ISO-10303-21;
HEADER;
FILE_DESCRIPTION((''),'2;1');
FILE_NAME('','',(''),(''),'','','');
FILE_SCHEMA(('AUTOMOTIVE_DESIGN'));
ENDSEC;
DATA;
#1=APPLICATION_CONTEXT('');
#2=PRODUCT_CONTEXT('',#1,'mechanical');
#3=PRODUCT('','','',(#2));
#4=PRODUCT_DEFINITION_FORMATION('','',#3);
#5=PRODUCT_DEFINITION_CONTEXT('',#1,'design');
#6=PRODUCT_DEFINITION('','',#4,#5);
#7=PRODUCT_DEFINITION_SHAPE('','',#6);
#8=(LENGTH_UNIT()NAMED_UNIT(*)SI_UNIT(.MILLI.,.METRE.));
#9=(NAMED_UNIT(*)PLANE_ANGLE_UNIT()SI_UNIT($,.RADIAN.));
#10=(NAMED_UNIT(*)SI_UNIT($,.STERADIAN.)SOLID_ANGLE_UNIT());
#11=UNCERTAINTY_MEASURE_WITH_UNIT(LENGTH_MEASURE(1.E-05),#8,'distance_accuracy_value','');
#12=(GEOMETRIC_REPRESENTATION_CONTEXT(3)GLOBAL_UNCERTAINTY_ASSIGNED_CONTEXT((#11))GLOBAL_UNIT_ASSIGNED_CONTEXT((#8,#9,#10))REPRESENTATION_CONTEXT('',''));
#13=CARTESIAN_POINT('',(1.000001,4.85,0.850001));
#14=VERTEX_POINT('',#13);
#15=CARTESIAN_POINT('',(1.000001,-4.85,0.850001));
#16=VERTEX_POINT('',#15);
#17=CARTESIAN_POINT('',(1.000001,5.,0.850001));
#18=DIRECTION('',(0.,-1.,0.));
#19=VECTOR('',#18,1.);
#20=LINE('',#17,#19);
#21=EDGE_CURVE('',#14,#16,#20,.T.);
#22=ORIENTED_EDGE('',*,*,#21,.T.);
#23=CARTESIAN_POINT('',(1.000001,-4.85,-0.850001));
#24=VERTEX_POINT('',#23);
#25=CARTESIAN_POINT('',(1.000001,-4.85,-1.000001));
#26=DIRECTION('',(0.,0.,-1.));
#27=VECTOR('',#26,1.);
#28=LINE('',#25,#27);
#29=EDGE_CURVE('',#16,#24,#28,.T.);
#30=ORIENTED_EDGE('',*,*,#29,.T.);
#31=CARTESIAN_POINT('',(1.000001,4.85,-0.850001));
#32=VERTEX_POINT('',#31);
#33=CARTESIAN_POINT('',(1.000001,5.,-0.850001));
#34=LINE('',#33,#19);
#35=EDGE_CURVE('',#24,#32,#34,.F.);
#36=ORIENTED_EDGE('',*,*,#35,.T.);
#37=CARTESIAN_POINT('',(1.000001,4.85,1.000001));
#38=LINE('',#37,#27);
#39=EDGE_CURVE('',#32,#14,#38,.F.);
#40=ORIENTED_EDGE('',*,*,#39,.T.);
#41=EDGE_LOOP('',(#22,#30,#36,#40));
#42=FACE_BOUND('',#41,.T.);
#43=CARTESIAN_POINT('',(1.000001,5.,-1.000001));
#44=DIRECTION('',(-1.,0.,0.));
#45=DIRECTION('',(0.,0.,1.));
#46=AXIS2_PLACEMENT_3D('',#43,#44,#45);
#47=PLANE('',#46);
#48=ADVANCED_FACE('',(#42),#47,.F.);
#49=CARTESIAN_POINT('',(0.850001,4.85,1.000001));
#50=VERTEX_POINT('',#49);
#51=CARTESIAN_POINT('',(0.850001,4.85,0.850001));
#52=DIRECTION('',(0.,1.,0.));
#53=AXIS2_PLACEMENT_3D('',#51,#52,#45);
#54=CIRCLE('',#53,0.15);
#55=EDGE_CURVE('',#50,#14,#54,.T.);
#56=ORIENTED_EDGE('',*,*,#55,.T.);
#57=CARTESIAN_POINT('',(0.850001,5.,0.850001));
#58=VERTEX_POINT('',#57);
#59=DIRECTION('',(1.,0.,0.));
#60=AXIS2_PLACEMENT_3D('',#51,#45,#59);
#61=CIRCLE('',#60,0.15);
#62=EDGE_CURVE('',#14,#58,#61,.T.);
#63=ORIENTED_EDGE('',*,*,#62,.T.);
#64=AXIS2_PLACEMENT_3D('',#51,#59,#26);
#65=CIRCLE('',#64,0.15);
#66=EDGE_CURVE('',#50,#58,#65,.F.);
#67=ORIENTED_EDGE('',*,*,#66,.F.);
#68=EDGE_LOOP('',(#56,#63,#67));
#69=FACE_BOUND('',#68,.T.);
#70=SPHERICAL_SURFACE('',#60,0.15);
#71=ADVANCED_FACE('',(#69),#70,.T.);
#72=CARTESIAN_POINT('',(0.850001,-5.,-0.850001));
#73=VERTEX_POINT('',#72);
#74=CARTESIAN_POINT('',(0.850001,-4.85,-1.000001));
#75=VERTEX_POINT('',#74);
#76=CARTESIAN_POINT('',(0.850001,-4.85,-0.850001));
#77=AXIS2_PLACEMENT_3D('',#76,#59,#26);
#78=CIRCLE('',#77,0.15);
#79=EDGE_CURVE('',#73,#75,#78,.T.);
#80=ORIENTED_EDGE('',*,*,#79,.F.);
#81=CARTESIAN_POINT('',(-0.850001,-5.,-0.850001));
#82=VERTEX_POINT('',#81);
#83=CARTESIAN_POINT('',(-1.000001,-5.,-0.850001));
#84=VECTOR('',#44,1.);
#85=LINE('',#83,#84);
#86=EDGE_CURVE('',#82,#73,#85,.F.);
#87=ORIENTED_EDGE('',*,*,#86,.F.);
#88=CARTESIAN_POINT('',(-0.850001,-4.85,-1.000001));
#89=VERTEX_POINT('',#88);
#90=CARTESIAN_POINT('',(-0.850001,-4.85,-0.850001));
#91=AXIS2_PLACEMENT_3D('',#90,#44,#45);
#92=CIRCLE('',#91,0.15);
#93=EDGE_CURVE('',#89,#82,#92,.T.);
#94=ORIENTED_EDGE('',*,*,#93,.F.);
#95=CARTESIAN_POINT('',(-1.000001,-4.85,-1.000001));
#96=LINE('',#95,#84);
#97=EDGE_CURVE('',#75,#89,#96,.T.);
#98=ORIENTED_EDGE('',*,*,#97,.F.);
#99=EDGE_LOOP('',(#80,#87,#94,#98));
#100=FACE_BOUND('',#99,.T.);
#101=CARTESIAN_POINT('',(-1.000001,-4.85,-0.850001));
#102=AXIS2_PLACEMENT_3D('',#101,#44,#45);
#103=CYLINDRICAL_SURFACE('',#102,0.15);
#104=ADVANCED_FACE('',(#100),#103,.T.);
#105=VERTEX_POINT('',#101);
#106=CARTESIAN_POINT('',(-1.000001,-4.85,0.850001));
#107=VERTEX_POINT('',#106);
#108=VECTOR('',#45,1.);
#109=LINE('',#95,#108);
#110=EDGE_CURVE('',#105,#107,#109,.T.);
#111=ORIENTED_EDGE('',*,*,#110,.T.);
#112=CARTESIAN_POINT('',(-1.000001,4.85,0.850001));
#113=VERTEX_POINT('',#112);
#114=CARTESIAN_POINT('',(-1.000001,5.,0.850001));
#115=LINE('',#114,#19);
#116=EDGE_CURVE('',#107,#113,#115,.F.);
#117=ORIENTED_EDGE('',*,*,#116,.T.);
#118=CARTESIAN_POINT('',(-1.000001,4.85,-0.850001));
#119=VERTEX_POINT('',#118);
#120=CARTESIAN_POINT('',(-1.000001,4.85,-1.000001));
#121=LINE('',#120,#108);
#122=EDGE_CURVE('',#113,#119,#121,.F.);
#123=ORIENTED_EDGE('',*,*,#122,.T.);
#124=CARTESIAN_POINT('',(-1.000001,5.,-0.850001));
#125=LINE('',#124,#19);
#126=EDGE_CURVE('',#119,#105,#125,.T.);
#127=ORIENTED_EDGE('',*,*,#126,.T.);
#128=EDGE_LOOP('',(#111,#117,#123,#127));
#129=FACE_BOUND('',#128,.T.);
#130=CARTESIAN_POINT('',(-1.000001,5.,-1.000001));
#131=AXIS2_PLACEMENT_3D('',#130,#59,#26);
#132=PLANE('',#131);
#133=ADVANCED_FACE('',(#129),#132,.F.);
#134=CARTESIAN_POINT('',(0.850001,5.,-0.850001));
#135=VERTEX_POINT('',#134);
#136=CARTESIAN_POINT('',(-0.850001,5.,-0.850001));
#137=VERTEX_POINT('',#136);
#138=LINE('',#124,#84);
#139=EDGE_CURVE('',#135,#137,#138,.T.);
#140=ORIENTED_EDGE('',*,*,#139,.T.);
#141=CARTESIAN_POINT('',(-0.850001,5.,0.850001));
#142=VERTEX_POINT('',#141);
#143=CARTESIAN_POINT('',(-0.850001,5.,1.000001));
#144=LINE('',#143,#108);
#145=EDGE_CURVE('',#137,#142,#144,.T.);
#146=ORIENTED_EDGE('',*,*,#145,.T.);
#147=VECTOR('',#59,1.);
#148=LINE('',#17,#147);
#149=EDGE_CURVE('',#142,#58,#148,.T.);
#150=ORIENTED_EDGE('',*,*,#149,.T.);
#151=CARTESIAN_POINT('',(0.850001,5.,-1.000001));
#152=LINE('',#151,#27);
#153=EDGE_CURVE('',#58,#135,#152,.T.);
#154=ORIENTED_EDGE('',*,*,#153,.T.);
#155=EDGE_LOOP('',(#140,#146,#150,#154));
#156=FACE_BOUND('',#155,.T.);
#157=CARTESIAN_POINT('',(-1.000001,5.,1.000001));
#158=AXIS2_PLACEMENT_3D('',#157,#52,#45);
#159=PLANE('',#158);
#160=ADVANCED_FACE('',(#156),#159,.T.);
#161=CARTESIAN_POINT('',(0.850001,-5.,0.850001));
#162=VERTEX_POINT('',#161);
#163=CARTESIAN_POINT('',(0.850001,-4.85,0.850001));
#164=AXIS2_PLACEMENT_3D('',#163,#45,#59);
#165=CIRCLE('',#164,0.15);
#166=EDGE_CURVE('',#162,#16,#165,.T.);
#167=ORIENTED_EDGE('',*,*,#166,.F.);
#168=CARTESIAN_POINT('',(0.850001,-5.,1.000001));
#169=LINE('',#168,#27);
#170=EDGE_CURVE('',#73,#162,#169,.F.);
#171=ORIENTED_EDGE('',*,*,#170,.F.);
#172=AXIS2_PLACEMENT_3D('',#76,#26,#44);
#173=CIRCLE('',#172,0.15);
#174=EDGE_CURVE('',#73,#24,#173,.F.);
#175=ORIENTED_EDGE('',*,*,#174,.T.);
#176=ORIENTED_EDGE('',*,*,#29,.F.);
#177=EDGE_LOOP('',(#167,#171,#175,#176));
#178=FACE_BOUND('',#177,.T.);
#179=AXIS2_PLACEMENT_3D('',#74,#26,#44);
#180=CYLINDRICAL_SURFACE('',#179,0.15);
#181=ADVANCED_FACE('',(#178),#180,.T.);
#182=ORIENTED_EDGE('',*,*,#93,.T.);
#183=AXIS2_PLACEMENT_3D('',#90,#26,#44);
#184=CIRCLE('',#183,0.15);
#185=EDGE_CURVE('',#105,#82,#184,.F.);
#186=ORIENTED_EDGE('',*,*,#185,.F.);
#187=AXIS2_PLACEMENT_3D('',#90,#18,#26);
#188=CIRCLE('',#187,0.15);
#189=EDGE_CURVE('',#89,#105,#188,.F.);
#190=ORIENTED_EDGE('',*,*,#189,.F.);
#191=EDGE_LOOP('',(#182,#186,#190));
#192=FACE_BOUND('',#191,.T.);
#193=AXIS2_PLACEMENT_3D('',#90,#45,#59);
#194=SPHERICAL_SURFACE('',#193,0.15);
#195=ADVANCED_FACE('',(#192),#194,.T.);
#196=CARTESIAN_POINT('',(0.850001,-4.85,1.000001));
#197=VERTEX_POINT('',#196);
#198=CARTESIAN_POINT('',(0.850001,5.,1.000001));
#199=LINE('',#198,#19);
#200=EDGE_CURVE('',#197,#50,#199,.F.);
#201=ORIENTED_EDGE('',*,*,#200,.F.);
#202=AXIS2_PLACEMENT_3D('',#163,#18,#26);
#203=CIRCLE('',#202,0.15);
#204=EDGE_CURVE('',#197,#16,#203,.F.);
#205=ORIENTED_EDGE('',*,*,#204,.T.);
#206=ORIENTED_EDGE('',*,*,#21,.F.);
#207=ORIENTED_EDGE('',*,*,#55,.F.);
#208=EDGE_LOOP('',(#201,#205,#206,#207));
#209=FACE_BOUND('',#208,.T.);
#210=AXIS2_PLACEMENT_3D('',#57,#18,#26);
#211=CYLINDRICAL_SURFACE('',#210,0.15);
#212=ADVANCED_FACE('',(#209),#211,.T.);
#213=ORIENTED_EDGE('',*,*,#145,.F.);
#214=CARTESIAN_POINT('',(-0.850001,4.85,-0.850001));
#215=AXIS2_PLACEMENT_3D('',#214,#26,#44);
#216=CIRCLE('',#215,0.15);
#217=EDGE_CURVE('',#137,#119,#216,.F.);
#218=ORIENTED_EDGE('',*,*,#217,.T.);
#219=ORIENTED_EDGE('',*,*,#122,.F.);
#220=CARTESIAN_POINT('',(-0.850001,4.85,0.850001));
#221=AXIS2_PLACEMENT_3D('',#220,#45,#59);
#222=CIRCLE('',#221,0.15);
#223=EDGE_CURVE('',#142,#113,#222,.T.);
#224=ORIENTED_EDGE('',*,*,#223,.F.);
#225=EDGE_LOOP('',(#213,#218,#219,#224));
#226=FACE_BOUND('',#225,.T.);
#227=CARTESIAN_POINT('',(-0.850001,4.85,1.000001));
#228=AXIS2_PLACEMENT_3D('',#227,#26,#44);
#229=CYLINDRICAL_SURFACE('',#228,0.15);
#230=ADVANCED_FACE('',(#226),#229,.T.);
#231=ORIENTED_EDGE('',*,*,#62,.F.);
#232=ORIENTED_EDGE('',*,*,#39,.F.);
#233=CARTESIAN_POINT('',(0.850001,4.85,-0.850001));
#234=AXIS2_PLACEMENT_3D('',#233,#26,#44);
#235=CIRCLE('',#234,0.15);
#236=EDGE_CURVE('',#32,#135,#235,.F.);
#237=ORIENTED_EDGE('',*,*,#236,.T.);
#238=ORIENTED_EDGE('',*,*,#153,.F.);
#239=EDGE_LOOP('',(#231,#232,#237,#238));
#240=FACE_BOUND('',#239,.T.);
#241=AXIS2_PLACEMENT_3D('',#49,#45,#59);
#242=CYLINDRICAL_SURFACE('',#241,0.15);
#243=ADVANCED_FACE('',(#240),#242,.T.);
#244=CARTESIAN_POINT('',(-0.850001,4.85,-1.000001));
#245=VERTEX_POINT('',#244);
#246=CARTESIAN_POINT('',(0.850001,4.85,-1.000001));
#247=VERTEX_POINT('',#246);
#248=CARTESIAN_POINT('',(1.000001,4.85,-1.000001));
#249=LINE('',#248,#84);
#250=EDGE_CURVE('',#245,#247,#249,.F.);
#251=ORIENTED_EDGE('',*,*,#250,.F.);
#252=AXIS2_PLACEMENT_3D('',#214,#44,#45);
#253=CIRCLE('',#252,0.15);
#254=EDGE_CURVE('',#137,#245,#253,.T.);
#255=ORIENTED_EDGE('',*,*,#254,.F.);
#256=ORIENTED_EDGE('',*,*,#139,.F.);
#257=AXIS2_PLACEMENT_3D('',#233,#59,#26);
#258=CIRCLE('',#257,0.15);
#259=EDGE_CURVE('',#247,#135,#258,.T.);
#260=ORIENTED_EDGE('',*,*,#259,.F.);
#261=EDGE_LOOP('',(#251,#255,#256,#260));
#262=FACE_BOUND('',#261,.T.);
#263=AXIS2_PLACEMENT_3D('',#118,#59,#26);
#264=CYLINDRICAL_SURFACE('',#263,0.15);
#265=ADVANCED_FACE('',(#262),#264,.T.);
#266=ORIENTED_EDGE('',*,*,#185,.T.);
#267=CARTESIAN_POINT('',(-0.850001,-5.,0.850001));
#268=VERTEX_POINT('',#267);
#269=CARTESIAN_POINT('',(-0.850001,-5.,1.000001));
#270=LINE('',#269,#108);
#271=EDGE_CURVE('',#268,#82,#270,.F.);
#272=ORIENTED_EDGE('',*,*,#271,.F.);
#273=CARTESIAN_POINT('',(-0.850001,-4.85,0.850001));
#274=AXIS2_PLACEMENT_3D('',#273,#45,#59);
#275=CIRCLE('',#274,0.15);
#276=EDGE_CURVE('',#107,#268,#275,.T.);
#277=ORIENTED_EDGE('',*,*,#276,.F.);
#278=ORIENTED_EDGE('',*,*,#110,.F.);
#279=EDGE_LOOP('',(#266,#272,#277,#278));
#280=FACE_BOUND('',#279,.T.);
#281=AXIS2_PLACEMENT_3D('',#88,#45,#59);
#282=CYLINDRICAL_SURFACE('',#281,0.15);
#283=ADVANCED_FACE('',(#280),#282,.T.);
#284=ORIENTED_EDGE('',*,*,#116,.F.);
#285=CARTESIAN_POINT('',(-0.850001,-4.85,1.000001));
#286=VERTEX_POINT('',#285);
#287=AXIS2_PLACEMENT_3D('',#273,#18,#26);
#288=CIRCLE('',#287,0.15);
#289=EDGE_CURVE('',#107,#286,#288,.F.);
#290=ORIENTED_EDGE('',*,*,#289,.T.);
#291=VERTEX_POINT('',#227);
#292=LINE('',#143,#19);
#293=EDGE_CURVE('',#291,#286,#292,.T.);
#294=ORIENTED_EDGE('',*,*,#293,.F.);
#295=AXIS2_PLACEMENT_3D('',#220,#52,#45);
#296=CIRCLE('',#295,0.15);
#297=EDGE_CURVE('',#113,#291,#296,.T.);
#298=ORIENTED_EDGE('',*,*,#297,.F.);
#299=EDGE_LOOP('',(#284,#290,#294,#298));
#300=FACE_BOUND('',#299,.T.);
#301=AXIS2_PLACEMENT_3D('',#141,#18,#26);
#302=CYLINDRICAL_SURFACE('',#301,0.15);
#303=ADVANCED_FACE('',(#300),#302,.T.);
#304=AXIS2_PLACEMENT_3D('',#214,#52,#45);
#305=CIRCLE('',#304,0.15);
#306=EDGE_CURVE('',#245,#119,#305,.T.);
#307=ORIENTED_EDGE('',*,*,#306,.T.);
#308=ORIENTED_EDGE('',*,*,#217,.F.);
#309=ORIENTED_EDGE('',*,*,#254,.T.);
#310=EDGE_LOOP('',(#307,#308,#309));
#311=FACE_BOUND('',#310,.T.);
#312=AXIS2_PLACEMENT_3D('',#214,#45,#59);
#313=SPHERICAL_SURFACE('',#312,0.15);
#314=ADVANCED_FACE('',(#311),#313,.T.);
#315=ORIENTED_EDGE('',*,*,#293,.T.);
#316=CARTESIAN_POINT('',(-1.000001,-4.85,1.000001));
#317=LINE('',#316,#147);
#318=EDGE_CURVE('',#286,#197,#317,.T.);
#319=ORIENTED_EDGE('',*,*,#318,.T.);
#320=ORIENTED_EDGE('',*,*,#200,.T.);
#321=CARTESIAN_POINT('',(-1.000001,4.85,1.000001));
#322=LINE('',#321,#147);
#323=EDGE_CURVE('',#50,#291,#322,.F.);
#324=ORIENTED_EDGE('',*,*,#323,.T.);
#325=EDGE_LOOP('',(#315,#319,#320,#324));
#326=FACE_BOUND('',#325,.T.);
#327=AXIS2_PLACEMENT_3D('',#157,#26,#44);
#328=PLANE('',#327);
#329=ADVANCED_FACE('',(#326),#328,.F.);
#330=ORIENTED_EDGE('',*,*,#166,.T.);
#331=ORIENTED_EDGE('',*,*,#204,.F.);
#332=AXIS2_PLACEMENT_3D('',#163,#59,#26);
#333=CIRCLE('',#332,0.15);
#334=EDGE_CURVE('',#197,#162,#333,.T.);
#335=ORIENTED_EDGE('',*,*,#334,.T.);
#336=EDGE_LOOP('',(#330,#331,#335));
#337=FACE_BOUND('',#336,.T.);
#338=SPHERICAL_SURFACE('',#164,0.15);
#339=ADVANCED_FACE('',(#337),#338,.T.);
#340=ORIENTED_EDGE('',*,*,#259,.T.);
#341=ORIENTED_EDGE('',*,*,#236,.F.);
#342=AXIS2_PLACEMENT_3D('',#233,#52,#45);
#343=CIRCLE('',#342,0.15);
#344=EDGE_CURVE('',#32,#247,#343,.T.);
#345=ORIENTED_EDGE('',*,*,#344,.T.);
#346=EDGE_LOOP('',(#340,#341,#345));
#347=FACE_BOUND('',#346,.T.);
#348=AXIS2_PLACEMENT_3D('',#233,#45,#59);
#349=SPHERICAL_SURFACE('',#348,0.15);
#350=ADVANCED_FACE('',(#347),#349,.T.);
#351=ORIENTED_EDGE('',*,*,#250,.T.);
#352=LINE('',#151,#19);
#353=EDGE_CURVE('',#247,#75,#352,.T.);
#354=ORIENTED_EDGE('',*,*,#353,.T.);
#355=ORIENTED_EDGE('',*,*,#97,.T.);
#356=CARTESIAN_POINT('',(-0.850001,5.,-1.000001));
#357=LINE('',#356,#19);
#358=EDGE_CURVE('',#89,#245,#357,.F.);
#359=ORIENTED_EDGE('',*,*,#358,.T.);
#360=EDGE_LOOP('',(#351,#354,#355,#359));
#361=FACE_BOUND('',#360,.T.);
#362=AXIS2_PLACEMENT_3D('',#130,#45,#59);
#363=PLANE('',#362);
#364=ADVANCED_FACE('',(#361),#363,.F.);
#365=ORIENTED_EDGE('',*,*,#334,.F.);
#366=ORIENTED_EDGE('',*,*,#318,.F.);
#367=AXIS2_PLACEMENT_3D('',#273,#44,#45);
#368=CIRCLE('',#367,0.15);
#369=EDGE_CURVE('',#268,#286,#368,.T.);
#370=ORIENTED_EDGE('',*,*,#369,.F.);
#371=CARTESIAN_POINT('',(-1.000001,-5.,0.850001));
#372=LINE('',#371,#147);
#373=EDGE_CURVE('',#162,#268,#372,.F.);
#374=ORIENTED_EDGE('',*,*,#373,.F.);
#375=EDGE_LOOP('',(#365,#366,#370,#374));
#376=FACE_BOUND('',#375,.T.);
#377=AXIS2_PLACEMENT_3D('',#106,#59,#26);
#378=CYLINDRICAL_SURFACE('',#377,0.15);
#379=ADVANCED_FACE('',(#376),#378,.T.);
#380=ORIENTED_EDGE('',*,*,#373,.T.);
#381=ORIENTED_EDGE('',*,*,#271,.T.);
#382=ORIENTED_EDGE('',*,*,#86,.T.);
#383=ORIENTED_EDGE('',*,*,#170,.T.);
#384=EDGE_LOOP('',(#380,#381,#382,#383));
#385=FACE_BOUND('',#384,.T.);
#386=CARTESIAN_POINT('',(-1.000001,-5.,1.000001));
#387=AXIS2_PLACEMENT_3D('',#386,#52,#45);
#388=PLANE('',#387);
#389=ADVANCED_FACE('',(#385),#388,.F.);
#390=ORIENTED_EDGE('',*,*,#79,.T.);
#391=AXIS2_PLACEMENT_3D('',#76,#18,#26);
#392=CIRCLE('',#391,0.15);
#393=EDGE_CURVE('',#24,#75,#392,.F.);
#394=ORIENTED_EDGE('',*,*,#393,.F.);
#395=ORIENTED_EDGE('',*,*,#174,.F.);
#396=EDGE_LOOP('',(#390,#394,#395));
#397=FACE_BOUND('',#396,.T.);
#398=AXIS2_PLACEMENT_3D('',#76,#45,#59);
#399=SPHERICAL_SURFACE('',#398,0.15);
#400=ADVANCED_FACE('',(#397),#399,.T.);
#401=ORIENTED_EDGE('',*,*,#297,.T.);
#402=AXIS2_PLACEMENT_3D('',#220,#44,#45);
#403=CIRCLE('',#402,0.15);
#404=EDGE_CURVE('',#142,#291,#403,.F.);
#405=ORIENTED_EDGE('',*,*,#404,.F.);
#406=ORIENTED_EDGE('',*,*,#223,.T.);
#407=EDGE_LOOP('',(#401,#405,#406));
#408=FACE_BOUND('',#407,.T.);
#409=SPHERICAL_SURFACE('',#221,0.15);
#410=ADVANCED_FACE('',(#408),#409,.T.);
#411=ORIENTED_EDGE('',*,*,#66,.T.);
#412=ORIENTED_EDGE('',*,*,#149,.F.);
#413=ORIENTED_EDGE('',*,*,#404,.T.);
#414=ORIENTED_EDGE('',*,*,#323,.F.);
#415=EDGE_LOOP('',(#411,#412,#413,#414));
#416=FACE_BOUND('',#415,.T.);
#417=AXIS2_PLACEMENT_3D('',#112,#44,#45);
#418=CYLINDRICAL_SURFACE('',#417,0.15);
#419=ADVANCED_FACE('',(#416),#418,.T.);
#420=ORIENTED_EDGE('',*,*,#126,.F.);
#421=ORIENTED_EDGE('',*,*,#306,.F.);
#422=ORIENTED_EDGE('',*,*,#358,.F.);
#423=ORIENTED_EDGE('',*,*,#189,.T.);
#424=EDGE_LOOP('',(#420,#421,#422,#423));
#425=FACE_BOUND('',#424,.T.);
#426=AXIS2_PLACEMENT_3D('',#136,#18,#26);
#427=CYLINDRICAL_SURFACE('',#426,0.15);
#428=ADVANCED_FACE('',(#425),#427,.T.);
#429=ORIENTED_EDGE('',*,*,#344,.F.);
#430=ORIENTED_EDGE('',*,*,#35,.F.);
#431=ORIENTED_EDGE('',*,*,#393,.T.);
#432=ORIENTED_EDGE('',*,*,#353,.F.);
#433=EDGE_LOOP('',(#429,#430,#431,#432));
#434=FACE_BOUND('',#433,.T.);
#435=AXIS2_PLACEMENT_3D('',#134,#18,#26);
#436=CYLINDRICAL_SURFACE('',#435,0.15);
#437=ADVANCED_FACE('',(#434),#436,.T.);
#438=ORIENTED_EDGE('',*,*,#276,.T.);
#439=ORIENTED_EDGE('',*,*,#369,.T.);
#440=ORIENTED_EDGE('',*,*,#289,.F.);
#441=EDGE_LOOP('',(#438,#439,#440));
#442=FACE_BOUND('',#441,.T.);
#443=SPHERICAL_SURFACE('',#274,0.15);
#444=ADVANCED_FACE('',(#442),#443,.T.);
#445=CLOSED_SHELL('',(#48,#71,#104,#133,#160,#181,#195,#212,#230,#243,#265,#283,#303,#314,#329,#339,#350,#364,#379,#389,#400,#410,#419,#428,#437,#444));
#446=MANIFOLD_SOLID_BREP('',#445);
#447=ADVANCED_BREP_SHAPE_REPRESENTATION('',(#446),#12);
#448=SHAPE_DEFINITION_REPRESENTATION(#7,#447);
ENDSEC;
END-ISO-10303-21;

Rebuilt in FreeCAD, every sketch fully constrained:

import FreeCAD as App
import Part
import Sketcher

doc = App.newDocument("Part")
body = doc.addObject("PartDesign::Body", "Body")

sketch1 = body.newObject("Sketcher::SketchObject", "Sketch")
sketch1.AttachmentSupport = (doc.getObject("XZ_Plane"), [""])
sketch1.MapMode = "FlatFace"
sketch1.addGeometry([
    Part.LineSegment(App.Vector(-1.000001, -1.000001, 0), App.Vector(-1.000001, 1.000001, 0)),
    Part.LineSegment(App.Vector(-1.000001, 1.000001, 0), App.Vector(1.000001, 1.000001, 0)),
    Part.LineSegment(App.Vector(1.000001, 1.000001, 0), App.Vector(1.000001, -1.000001, 0)),
    Part.LineSegment(App.Vector(1.000001, -1.000001, 0), App.Vector(-1.000001, -1.000001, 0)),
], False)
sketch1.addConstraint([
    Sketcher.Constraint("Coincident", 0, 2, 1, 1),
    Sketcher.Constraint("Coincident", 1, 2, 2, 1),
    Sketcher.Constraint("Coincident", 2, 2, 3, 1),
    Sketcher.Constraint("Coincident", 3, 2, 0, 1),
    Sketcher.Constraint("Vertical", 0),
    Sketcher.Constraint("Horizontal", 1),
    Sketcher.Constraint("Vertical", 2),
    Sketcher.Constraint("Horizontal", 3),
    Sketcher.Constraint("Symmetric", 0, 2, 2, 2, -1, 1),
    Sketcher.Constraint("Equal", 3, 0),
    Sketcher.Constraint("DistanceX", 1, 1, 1, 2, 2.000001),
])
pad1 = body.newObject("PartDesign::Pad", "Pad")
pad1.Profile = sketch1
pad1.Length = 10
pad1.Midplane = True
doc.recompute()

fillet = body.newObject("PartDesign::Fillet", "Fillet")
fillet.Base = (pad1, ["Edge1"])
fillet.UseAllEdges = True
fillet.Radius = 0.15

doc.recompute()
